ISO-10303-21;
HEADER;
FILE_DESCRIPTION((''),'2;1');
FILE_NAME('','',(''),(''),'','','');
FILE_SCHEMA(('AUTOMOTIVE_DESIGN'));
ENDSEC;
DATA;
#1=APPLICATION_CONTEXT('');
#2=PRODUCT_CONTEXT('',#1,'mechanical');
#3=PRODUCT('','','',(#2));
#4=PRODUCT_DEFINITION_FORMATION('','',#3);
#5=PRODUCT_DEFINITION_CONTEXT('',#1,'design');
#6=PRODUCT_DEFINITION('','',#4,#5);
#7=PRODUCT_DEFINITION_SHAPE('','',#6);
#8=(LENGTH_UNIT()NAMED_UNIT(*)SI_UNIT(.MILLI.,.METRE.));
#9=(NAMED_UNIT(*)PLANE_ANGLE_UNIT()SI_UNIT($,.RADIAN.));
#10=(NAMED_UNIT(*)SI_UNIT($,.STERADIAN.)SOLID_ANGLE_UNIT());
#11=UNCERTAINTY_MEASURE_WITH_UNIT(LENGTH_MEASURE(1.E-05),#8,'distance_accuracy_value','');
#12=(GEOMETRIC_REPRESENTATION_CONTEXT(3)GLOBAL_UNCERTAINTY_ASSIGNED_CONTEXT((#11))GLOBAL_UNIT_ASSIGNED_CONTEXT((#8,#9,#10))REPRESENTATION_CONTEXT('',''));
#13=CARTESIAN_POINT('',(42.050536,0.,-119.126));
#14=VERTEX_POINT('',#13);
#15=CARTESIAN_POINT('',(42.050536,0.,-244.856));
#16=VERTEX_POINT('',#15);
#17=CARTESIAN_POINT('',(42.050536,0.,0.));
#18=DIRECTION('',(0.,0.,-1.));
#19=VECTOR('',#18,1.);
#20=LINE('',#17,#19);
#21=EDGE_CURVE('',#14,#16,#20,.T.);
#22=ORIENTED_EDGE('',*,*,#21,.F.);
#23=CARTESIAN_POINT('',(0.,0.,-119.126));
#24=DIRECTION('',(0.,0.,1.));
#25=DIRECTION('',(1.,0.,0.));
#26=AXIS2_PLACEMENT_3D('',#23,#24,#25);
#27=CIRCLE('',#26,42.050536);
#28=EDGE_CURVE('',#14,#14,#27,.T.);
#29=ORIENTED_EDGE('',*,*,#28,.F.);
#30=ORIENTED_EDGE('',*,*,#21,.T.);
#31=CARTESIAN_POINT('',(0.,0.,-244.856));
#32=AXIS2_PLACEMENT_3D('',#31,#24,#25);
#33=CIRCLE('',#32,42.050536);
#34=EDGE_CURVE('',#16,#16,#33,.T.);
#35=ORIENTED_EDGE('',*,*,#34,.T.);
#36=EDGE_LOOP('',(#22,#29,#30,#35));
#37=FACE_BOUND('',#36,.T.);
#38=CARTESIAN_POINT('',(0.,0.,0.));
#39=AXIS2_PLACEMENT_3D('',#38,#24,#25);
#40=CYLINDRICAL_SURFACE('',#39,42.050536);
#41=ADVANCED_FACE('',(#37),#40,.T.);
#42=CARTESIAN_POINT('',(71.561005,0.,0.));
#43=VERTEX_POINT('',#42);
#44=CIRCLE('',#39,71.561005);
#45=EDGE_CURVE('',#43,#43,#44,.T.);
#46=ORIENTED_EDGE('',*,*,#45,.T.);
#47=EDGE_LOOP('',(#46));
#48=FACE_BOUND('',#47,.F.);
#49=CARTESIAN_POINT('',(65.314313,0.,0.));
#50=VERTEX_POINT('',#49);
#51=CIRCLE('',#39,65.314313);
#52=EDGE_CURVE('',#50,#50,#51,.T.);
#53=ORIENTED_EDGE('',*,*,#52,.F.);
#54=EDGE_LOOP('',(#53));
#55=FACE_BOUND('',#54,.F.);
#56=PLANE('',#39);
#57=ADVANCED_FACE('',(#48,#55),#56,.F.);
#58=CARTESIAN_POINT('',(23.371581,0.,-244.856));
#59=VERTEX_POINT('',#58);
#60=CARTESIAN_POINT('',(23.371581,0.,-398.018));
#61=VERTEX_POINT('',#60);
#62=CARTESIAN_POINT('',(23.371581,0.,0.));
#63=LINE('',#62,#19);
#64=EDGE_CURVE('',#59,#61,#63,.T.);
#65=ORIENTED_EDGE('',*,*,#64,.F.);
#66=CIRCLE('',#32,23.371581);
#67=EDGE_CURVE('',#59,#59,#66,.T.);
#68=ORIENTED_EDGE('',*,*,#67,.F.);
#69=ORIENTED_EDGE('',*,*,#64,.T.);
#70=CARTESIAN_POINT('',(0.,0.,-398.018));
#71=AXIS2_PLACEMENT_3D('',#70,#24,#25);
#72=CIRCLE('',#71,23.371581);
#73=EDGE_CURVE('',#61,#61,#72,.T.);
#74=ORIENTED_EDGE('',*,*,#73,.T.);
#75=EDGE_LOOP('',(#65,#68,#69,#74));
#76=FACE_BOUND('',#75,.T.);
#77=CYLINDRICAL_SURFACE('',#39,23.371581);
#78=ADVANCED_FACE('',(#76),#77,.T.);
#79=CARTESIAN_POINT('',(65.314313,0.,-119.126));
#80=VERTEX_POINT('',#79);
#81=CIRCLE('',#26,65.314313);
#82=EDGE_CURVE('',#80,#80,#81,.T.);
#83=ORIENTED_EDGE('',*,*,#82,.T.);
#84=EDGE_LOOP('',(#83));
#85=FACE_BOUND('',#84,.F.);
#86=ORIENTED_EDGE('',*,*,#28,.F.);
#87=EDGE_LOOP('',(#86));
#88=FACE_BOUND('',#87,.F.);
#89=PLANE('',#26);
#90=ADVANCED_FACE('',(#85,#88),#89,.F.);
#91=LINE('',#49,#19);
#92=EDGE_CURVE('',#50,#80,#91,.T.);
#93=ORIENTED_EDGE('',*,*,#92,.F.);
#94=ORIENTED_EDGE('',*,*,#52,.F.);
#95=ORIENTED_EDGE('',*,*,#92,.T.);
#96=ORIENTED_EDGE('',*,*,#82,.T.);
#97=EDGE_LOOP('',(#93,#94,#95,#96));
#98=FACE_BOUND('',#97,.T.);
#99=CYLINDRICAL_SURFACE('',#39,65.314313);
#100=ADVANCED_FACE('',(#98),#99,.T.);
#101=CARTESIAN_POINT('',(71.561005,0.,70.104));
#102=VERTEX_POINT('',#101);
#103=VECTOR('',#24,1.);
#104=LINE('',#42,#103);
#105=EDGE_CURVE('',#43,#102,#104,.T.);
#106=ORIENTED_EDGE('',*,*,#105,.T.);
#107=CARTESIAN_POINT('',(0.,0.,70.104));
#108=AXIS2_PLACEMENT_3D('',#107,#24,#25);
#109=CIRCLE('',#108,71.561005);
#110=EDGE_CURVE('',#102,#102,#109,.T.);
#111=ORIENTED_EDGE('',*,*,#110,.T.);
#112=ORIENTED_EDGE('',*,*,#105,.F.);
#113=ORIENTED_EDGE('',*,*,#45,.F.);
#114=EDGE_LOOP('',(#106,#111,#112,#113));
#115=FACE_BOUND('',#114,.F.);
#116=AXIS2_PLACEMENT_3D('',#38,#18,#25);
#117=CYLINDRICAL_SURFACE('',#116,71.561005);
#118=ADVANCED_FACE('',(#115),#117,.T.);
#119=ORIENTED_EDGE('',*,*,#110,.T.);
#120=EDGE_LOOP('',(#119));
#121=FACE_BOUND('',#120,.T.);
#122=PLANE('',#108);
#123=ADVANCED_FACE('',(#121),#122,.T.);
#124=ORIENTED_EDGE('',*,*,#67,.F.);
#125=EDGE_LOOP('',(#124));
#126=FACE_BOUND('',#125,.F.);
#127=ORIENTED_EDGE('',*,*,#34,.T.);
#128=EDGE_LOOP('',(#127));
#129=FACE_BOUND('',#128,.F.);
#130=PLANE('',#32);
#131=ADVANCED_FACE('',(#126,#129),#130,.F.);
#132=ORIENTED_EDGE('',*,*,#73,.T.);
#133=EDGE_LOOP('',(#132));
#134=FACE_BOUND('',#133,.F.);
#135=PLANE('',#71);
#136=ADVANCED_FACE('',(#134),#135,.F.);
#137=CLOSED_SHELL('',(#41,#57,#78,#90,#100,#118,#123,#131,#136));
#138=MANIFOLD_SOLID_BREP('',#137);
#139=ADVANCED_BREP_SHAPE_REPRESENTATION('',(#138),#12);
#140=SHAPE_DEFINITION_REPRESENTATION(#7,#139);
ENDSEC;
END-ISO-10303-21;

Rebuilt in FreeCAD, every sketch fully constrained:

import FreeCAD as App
import Part
import Sketcher
from FreeCAD import Vector
Q = App.Units.Quantity

doc = App.newDocument("Part")
params = doc.addObject("Spreadsheet::Sheet", "Params")
for row, (alias, value) in enumerate([
    ("pad1_length", "2.76 in"),
    ("pad2_length", "2.45 in"),
    ("pad2_length2", "4.69 in"),
    ("pad3_length", "1 in"),
    ("pad3_length2", "9.64 in"),
    ("pad4_length", "1 in"),
    ("pad4_length2", "15.67 in"),
], start=1):
    params.set(f"A{row}", alias)
    params.set(f"B{row}", "=" + value)
    params.setAlias(f"B{row}", alias)

body = doc.addObject("PartDesign::Body", "Body")

sketch1 = body.newObject("Sketcher::SketchObject", "Sketch")
sketch1.AttachmentSupport = (doc.getObject("XY_Plane"), [""])
sketch1.MapMode = "FlatFace"
sketch1.addGeometry(Part.Circle(Vector(0, 0, 0), Vector(0, 0, 1), 72), False)
sketch1.addConstraint(Sketcher.Constraint("Coincident", 0, 3, -1, 1))
sketch1.addConstraint(Sketcher.Constraint("Diameter", 0, Q("143.12201 mm")))
pad1 = body.newObject("PartDesign::Pad", "Pad")
pad1.Profile = sketch1
pad1.setExpression("Length", "Params.pad1_length")

sketch2 = body.newObject("Sketcher::SketchObject", "Sketch001")
sketch2.AttachmentSupport = (doc.getObject("XY_Plane"), [""])
sketch2.MapMode = "FlatFace"
sketch2.addGeometry(Part.Circle(Vector(0, 0, 0), Vector(0, 0, 1), 65), False)
sketch2.addConstraint(Sketcher.Constraint("Coincident", 0, 3, -1, 1))
sketch2.addConstraint(Sketcher.Constraint("Diameter", 0, Q("130.628626 mm")))
pad2 = body.newObject("PartDesign::Pad", "Pad001")
pad2.Profile = sketch2
pad2.Type = "TwoLengths"
pad2.setExpression("Length", "Params.pad2_length")
pad2.setExpression("Length2", "Params.pad2_length2")

sketch3 = body.newObject("Sketcher::SketchObject", "Sketch002")
sketch3.AttachmentSupport = (doc.getObject("XY_Plane"), [""])
sketch3.MapMode = "FlatFace"
sketch3.addGeometry(Part.Circle(Vector(0, 0, 0), Vector(0, 0, 1), 42), False)
sketch3.addConstraint(Sketcher.Constraint("Coincident", 0, 3, -1, 1))
sketch3.addConstraint(Sketcher.Constraint("Diameter", 0, Q("84.101072 mm")))
pad3 = body.newObject("PartDesign::Pad", "Pad002")
pad3.Profile = sketch3
pad3.Type = "TwoLengths"
pad3.setExpression("Length", "Params.pad3_length")
pad3.setExpression("Length2", "Params.pad3_length2")

sketch4 = body.newObject("Sketcher::SketchObject", "Sketch003")
sketch4.AttachmentSupport = (doc.getObject("XY_Plane"), [""])
sketch4.MapMode = "FlatFace"
sketch4.addGeometry(Part.Circle(Vector(0, 0, 0), Vector(0, 0, 1), 23), False)
sketch4.addConstraint(Sketcher.Constraint("Coincident", 0, 3, -1, 1))
sketch4.addConstraint(Sketcher.Constraint("Diameter", 0, Q("46.743162 mm")))
pad4 = body.newObject("PartDesign::Pad", "Pad003")
pad4.Profile = sketch4
pad4.Type = "TwoLengths"
pad4.setExpression("Length", "Params.pad4_length")
pad4.setExpression("Length2", "Params.pad4_length2")

doc.recompute()
